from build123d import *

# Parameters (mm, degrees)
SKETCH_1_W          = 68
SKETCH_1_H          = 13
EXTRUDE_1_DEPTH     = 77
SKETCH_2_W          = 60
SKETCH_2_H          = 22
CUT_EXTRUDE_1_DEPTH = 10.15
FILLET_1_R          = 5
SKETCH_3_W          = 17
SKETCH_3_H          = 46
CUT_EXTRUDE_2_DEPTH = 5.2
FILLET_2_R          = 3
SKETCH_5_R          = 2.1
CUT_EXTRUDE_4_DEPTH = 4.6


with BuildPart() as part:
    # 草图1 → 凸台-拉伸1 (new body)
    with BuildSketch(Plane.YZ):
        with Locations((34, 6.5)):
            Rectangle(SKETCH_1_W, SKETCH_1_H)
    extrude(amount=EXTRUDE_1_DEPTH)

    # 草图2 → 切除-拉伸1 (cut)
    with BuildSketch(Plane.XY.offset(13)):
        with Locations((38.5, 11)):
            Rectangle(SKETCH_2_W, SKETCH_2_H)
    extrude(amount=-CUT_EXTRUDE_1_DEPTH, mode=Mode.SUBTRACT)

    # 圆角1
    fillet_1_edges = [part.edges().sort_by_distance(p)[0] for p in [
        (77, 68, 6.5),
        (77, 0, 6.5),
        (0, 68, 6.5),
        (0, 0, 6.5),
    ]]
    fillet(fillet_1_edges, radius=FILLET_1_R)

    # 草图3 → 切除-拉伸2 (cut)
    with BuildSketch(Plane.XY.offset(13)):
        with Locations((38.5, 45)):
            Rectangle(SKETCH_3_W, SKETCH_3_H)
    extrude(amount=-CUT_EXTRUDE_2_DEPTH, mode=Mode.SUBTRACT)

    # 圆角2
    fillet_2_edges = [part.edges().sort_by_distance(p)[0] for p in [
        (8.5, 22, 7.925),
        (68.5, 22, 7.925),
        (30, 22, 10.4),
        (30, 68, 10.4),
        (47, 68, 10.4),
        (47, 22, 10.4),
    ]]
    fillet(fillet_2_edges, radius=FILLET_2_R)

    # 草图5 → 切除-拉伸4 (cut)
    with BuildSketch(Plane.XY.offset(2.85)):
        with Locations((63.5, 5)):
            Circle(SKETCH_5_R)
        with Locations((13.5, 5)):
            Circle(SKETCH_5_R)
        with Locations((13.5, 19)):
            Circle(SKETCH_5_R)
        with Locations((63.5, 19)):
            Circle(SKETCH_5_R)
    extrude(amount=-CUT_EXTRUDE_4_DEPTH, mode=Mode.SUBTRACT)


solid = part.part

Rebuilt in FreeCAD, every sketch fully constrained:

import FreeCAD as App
import Part
import Sketcher

V = App.Vector


def edges_at(feature, points):
    """Names of the edges that pass closest to the given points."""
    edges = feature.Shape.Edges
    near = lambda p: min(range(len(edges)), key=lambda i: edges[i].distToShape(Part.Vertex(*p))[0])
    return sorted({f"Edge{near(p) + 1}" for p in points})

doc = App.newDocument("Part")
body = doc.addObject("PartDesign::Body", "Body")

sketch1 = body.newObject("Sketcher::SketchObject", "Sketch")
sketch1.AttachmentSupport = (doc.getObject("YZ_Plane"), [""])
sketch1.MapMode = "FlatFace"
sketch1.addGeometry([
    Part.LineSegment(V(0, 13, 0), V(0, 0, 0)),
    Part.LineSegment(V(0, 0, 0), V(68, 0, 0)),
    Part.LineSegment(V(68, 0, 0), V(68, 13, 0)),
    Part.LineSegment(V(68, 13, 0), V(0, 13, 0)),
], False)
sketch1.addConstraint([
    Sketcher.Constraint("Coincident", 0, 2, 1, 1),
    Sketcher.Constraint("Coincident", 1, 2, 2, 1),
    Sketcher.Constraint("Coincident", 2, 2, 3, 1),
    Sketcher.Constraint("Coincident", 3, 2, 0, 1),
    Sketcher.Constraint("Vertical", 0),
    Sketcher.Constraint("Horizontal", 1),
    Sketcher.Constraint("Vertical", 2),
    Sketcher.Constraint("Horizontal", 3),
    Sketcher.Constraint("Coincident", 0, 2, -1, 1),
    Sketcher.Constraint("DistanceX", 1, 1, 1, 2, 68.0),
    Sketcher.Constraint("DistanceY", 0, 2, 0, 1, 13.0),
])
pad1 = body.newObject("PartDesign::Pad", "Pad")
pad1.Profile = sketch1
pad1.Length = 77

sketch2 = body.newObject("Sketcher::SketchObject", "Sketch001")
sketch2.AttachmentSupport = (doc.getObject("XY_Plane"), [""])
sketch2.MapMode = "FlatFace"
sketch2.AttachmentOffset = App.Placement(V(0, 0, 13), App.Rotation())
sketch2.addGeometry([
    Part.LineSegment(V(8, 22, 0), V(8, 0, 0)),
    Part.LineSegment(V(8, 0, 0), V(68, 0, 0)),
    Part.LineSegment(V(68, 0, 0), V(68, 22, 0)),
    Part.LineSegment(V(68, 22, 0), V(8, 22, 0)),
], False)
sketch2.addConstraint([
    Sketcher.Constraint("Coincident", 0, 2, 1, 1),
    Sketcher.Constraint("Coincident", 1, 2, 2, 1),
    Sketcher.Constraint("Coincident", 2, 2, 3, 1),
    Sketcher.Constraint("Coincident", 3, 2, 0, 1),
    Sketcher.Constraint("Vertical", 0),
    Sketcher.Constraint("Horizontal", 1),
    Sketcher.Constraint("Vertical", 2),
    Sketcher.Constraint("Horizontal", 3),
    Sketcher.Constraint("PointOnObject", 0, 2, -1),
    Sketcher.Constraint("DistanceX", 1, 1, 1, 2, 60.0),
    Sketcher.Constraint("DistanceY", 0, 2, 0, 1, 22.0),
    Sketcher.Constraint("DistanceX", -1, 1, 0, 2, 8.5),
])
pocket1 = body.newObject("PartDesign::Pocket", "Pocket")
pocket1.Profile = sketch2
pocket1.Length = 10.15
doc.recompute()

fillet = body.newObject("PartDesign::Fillet", "Fillet")
fillet.Base = (pocket1, edges_at(pocket1, [
    (77, 68, 6.5),
    (77, 0, 6.5),
    (0, 68, 6.5),
    (0, 0, 6.5),
]))
fillet.Radius = 5

sketch3 = body.newObject("Sketcher::SketchObject", "Sketch002")
sketch3.AttachmentSupport = (doc.getObject("XY_Plane"), [""])
sketch3.MapMode = "FlatFace"
sketch3.AttachmentOffset = App.Placement(V(0, 0, 13), App.Rotation())
sketch3.addGeometry([
    Part.LineSegment(V(30, 68, 0), V(30, 22, 0)),
    Part.LineSegment(V(30, 22, 0), V(47, 22, 0)),
    Part.LineSegment(V(47, 22, 0), V(47, 68, 0)),
    Part.LineSegment(V(47, 68, 0), V(30, 68, 0)),
], False)
sketch3.addConstraint([
    Sketcher.Constraint("Coincident", 0, 2, 1, 1),
    Sketcher.Constraint("Coincident", 1, 2, 2, 1),
    Sketcher.Constraint("Coincident", 2, 2, 3, 1),
    Sketcher.Constraint("Coincident", 3, 2, 0, 1),
    Sketcher.Constraint("Vertical", 0),
    Sketcher.Constraint("Horizontal", 1),
    Sketcher.Constraint("Vertical", 2),
    Sketcher.Constraint("Horizontal", 3),
    Sketcher.Constraint("DistanceX", 1, 1, 1, 2, 17.0),
    Sketcher.Constraint("DistanceY", 0, 2, 0, 1, 46.0),
    Sketcher.Constraint("DistanceX", -1, 1, 0, 2, 30.0),
    Sketcher.Constraint("DistanceY", -1, 1, 0, 2, 22.0),
])
pocket2 = body.newObject("PartDesign::Pocket", "Pocket001")
pocket2.Profile = sketch3
pocket2.Length = 5.2
doc.recompute()

fillet2 = body.newObject("PartDesign::Fillet", "Fillet001")
fillet2.Base = (pocket2, edges_at(pocket2, [
    (8.5, 22, 7.925),
    (68.5, 22, 7.925),
    (30, 22, 10.4),
    (30, 68, 10.4),
    (47, 68, 10.4),
    (47, 22, 10.4),
]))
fillet2.Radius = 3

sketch4 = body.newObject("Sketcher::SketchObject", "Sketch003")
sketch4.AttachmentSupport = (doc.getObject("XY_Plane"), [""])
sketch4.MapMode = "FlatFace"
sketch4.AttachmentOffset = App.Placement(V(0, 0, 2.85), App.Rotation())
sketch4.addGeometry([
    Part.Circle(V(63.5, 5, 0), V(0, 0, 1), 2.1),
    Part.Circle(V(13.5, 5, 0), V(0, 0, 1), 2.1),
    Part.Circle(V(13.5, 19, 0), V(0, 0, 1), 2.1),
    Part.Circle(V(63.5, 19, 0), V(0, 0, 1), 2.1),
], False)
sketch4.addConstraint([
    Sketcher.Constraint("Equal", 0, 1),
    Sketcher.Constraint("Equal", 1, 2),
    Sketcher.Constraint("Equal", 2, 3),
    Sketcher.Constraint("Horizontal", 0, 3, 1, 3),
    Sketcher.Constraint("Horizontal", 2, 3, 3, 3),
    Sketcher.Constraint("Vertical", 1, 3, 2, 3),
    Sketcher.Constraint("Vertical", 0, 3, 3, 3),
    Sketcher.Constraint("Diameter", 0, 4.2),
    Sketcher.Constraint("DistanceY", -1, 1, 0, 3, 5.0),
    Sketcher.Constraint("DistanceY", -1, 1, 2, 3, 19.0),
    Sketcher.Constraint("DistanceX", 1, 3, 0, 3, 50.0),
    Sketcher.Constraint("DistanceX", -1, 1, 0, 3, 63.5),
])
pocket3 = body.newObject("PartDesign::Pocket", "Pocket002")
pocket3.Profile = sketch4
pocket3.Length = 4.6

doc.recompute()
